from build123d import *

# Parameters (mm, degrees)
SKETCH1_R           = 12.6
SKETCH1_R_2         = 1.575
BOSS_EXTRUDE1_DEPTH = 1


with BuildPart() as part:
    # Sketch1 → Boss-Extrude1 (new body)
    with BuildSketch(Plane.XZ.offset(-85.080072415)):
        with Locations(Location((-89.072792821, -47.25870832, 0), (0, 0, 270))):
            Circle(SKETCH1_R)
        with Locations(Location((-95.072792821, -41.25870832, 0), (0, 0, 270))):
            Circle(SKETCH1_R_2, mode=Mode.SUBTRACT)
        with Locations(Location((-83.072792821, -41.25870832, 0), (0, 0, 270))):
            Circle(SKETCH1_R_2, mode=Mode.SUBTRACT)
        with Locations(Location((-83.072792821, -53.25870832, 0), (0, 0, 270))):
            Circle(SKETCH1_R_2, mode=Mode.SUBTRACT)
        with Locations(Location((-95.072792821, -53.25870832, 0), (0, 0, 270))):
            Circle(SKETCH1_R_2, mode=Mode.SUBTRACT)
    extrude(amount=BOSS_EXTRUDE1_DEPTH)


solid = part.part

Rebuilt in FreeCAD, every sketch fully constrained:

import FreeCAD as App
import Part
import Sketcher

V = App.Vector

doc = App.newDocument("Part")
body = doc.addObject("PartDesign::Body", "Body")

sketch1 = body.newObject("Sketcher::SketchObject", "Sketch")
sketch1.AttachmentSupport = (doc.getObject("XZ_Plane"), [""])
sketch1.MapMode = "FlatFace"
sketch1.AttachmentOffset = App.Placement(V(0, 0, -85.080072), App.Rotation())
sketch1.addGeometry([
    Part.Circle(V(-89.1, -47.3, 0), V(0, 0, 1), 12.6),
    Part.Circle(V(-95.1, -41.3, 0), V(0, 0, 1), 1.6),
    Part.Circle(V(-95.1, -53.3, 0), V(0, 0, 1), 1.6),
    Part.Circle(V(-83.1, -41.3, 0), V(0, 0, 1), 1.6),
    Part.Circle(V(-83.1, -53.3, 0), V(0, 0, 1), 1.6),
], False)
sketch1.addConstraint([
    Sketcher.Constraint("Equal", 1, 2),
    Sketcher.Constraint("Equal", 2, 3),
    Sketcher.Constraint("Equal", 3, 4),
    Sketcher.Constraint("Horizontal", 1, 3, 3, 3),
    Sketcher.Constraint("Horizontal", 2, 3, 4, 3),
    Sketcher.Constraint("Vertical", 1, 3, 2, 3),
    Sketcher.Constraint("Vertical", 3, 3, 4, 3),
    Sketcher.Constraint("Diameter", 0, 25.2),
    Sketcher.Constraint("Diameter", 1, 3.15),
    Sketcher.Constraint("DistanceX", 1, 3, 0, 3, 6.0),
    Sketcher.Constraint("DistanceY", 0, 3, 1, 3, 6.0),
    Sketcher.Constraint("DistanceY", 2, 3, 0, 3, 6.0),
    Sketcher.Constraint("DistanceX", 0, 3, 3, 3, 6.0),
    Sketcher.Constraint("DistanceY", 0, 3, -1, 1, 47.258708),
    Sketcher.Constraint("DistanceX", 0, 3, -1, 1, 89.072793),
])
pad1 = body.newObject("PartDesign::Pad", "Pad")
pad1.Profile = sketch1
pad1.Length = 1

doc.recompute()
